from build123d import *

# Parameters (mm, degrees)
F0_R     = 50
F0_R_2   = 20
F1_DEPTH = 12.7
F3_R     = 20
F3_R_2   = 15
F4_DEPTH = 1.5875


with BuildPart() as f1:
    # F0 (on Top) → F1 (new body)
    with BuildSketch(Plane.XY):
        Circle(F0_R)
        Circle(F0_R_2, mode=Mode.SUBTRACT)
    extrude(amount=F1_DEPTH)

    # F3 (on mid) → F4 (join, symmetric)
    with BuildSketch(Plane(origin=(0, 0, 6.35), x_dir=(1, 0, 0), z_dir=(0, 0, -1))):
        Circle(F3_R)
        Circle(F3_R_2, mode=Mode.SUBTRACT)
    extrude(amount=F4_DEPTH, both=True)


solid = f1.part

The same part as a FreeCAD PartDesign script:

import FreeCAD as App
import Part
import Sketcher

doc = App.newDocument("Part")
body = doc.addObject("PartDesign::Body", "Body")

# Sketch on XY plane
sketch1 = body.newObject("Sketcher::SketchObject", "Sketch")
sketch1.AttachmentSupport = (doc.getObject("XY_Plane"), [""])
sketch1.MapMode = "FlatFace"
sketch1.addGeometry([
    Part.Circle(App.Vector(0, 0, 0), App.Vector(0, 0, 1), 50),
    Part.Circle(App.Vector(0, 0, 0), App.Vector(0, 0, 1), 20),
], False)
sketch1.addConstraint([
    Sketcher.Constraint("Coincident", 0, 3, -1, 1),
    Sketcher.Constraint("Coincident", 1, 3, -1, 1),
    Sketcher.Constraint("Diameter", 0, 100.0),
    Sketcher.Constraint("Diameter", 1, 40.0),
])
pad1 = body.newObject("PartDesign::Pad", "Pad")
pad1.Profile = sketch1
pad1.Length = 12.7

# Sketch on XY plane
sketch2 = body.newObject("Sketcher::SketchObject", "Sketch001")
sketch2.AttachmentSupport = (doc.getObject("XY_Plane"), [""])
sketch2.MapMode = "FlatFace"
sketch2.AttachmentOffset = App.Placement(App.Vector(0, 0, 6.35), App.Rotation())
sketch2.addGeometry([
    Part.Circle(App.Vector(0, 0, 0), App.Vector(0, 0, 1), 20),
    Part.Circle(App.Vector(0, 0, 0), App.Vector(0, 0, 1), 15),
], False)
sketch2.addConstraint([
    Sketcher.Constraint("Coincident", 0, 3, -1, 1),
    Sketcher.Constraint("Coincident", 1, 3, -1, 1),
    Sketcher.Constraint("Diameter", 0, 40.0),
    Sketcher.Constraint("Diameter", 1, 30.0),
])
pad2 = body.newObject("PartDesign::Pad", "Pad001")
pad2.Profile = sketch2
pad2.Length = 3.175
pad2.Midplane = True

doc.recompute()
